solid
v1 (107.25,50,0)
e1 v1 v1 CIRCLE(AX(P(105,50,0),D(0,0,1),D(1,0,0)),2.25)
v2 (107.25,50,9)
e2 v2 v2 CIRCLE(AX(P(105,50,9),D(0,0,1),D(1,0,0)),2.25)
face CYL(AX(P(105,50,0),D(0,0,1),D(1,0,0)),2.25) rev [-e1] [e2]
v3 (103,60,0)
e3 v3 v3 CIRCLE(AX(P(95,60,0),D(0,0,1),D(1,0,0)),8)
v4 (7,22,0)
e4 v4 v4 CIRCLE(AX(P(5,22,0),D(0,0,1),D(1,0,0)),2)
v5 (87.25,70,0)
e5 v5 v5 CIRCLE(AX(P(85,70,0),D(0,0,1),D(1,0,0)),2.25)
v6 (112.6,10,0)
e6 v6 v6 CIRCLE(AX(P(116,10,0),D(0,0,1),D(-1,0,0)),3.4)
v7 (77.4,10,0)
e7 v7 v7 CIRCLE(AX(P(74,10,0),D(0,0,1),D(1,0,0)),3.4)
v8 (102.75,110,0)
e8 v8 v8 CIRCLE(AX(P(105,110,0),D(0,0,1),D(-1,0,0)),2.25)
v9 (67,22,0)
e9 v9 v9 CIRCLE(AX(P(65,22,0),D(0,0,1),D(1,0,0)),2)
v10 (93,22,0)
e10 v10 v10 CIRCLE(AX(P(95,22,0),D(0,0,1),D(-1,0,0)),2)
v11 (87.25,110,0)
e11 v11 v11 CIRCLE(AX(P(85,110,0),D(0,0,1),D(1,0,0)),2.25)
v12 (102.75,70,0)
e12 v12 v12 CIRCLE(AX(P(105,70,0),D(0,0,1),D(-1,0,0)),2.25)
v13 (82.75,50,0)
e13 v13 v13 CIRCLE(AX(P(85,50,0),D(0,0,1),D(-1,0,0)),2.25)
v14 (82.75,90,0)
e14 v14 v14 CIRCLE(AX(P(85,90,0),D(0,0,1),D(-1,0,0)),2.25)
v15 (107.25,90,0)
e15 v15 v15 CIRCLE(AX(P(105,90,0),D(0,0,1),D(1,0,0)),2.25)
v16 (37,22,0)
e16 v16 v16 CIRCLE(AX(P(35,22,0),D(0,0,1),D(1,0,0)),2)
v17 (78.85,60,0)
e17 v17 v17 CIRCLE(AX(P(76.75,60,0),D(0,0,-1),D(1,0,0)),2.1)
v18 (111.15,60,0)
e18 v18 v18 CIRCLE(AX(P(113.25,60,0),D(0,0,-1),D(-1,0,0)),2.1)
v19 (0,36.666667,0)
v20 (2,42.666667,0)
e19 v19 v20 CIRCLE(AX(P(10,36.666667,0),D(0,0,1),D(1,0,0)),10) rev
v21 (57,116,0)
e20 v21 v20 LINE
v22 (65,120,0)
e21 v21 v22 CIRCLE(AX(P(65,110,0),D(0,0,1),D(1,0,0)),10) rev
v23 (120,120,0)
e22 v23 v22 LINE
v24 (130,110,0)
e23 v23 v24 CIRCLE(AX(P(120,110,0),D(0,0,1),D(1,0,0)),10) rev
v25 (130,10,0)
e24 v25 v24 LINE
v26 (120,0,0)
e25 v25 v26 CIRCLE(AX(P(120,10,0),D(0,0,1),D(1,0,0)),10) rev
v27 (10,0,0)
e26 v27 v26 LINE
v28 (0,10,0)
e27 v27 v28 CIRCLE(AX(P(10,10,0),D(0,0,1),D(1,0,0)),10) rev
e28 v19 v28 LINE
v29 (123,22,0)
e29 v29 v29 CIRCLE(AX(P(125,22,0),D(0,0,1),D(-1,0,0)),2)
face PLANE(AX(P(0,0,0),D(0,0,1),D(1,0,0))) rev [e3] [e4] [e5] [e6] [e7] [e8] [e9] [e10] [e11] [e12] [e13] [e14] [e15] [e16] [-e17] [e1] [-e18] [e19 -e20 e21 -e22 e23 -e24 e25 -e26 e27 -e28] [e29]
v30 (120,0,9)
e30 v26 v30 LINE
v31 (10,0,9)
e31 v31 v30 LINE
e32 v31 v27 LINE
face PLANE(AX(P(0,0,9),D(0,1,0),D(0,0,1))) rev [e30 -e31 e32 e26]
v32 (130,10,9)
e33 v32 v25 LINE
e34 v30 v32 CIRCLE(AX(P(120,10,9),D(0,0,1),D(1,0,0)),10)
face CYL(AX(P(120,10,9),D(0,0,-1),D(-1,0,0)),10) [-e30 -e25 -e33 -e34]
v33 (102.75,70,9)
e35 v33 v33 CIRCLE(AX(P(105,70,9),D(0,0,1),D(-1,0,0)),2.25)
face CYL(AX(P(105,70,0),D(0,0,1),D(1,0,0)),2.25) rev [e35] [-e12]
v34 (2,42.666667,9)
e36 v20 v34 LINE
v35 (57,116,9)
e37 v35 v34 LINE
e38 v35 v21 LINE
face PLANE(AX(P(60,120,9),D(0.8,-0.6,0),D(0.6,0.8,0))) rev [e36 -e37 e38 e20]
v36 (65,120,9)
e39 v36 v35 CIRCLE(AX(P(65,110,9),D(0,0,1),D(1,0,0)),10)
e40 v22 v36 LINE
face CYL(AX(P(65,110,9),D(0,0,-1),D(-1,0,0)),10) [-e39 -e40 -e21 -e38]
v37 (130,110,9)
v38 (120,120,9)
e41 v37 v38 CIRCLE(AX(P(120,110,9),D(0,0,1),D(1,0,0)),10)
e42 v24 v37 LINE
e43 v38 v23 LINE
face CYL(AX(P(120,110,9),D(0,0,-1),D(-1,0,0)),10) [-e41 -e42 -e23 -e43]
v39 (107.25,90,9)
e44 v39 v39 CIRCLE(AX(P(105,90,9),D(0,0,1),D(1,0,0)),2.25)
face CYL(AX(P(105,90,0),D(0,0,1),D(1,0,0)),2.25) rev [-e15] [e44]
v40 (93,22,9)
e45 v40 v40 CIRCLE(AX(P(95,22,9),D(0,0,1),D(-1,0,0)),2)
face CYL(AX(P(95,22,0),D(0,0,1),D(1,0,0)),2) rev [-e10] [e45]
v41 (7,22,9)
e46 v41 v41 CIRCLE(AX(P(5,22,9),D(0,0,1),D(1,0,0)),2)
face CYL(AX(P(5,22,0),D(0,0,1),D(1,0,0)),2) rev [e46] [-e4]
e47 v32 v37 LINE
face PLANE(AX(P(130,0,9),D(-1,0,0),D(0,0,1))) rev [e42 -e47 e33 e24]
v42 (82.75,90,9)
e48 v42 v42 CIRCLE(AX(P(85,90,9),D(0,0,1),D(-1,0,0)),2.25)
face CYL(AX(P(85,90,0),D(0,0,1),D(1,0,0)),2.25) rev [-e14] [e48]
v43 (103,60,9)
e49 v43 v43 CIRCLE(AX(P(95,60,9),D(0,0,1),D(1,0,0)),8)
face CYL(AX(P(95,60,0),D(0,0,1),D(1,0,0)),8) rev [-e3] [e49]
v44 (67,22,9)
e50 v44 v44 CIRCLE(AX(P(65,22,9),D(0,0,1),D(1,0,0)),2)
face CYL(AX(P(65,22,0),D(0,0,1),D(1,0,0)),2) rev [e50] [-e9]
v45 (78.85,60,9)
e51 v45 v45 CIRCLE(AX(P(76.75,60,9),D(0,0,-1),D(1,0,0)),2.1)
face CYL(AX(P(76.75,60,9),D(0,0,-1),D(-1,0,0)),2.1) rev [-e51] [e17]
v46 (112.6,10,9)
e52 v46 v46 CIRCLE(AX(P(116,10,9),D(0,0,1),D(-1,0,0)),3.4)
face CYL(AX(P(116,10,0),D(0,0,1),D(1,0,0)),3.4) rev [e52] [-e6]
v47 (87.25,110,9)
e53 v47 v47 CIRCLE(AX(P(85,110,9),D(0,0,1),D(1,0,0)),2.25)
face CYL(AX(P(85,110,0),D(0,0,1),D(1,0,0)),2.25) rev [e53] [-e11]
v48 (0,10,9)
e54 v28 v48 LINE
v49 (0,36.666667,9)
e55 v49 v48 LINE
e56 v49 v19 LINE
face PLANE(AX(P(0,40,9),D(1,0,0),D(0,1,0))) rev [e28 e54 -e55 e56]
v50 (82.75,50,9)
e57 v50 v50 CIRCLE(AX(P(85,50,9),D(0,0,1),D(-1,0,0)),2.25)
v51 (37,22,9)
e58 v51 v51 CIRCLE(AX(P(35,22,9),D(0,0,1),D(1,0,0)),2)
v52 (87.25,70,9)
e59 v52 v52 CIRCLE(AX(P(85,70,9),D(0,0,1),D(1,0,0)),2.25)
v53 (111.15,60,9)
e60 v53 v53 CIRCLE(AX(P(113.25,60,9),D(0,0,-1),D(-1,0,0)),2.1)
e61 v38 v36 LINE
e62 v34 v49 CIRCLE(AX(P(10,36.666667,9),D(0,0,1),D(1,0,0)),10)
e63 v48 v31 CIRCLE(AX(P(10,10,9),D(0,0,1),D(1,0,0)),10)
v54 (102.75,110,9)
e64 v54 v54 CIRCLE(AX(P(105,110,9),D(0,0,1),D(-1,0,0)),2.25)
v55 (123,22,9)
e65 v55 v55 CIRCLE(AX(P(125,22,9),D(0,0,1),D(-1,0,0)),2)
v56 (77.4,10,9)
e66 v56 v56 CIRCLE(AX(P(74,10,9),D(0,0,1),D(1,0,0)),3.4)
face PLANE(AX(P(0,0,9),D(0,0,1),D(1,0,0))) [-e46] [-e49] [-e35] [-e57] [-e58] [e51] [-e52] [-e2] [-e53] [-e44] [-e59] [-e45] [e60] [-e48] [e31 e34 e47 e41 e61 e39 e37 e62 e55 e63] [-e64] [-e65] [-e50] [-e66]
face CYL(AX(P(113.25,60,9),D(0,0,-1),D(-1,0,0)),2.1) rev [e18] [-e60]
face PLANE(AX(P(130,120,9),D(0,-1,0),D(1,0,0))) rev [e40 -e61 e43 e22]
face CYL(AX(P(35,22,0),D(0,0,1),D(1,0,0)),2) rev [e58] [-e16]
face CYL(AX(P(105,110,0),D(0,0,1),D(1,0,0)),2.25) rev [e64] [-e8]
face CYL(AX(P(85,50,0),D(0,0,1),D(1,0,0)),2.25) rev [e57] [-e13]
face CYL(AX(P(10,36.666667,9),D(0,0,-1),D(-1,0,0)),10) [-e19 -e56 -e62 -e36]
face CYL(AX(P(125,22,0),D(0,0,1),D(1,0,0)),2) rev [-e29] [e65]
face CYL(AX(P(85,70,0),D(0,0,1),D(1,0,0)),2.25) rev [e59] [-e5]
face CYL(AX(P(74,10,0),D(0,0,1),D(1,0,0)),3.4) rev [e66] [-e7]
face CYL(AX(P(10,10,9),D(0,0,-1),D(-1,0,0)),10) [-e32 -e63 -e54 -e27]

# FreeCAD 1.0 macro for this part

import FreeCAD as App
import Part
import Sketcher

V = App.Vector


def edges_at(feature, points):
    """Names of the edges that pass closest to the given points."""
    edges = feature.Shape.Edges
    near = lambda p: min(range(len(edges)), key=lambda i: edges[i].distToShape(Part.Vertex(*p))[0])
    return sorted({f"Edge{near(p) + 1}" for p in points})

doc = App.newDocument("Part")
body = doc.addObject("PartDesign::Body", "Body")

# Sketch on XY plane
sketch1 = body.newObject("Sketcher::SketchObject", "Sketch")
sketch1.AttachmentSupport = (doc.getObject("XY_Plane"), [""])
sketch1.MapMode = "FlatFace"
sketch1.addGeometry([
    Part.LineSegment(V(0, 0, 0), V(130, 0, 0)),  # 0
    Part.LineSegment(V(130, 0, 0), V(130, 120, 0)),  # 1
    Part.LineSegment(V(130, 120, 0), V(60, 120, 0)),  # 2
    Part.LineSegment(V(60, 120, 0), V(0, 40, 0)),  # 3
    Part.LineSegment(V(0, 40, 0), V(0, 0, 0)),  # 4
], False)
sketch1.addConstraint([
    Sketcher.Constraint("Coincident", 0, 2, 1, 1),
    Sketcher.Constraint("Coincident", 1, 2, 2, 1),
    Sketcher.Constraint("Coincident", 2, 2, 3, 1),
    Sketcher.Constraint("Coincident", 3, 2, 4, 1),
    Sketcher.Constraint("Coincident", 4, 2, 0, 1),
    Sketcher.Constraint("Horizontal", 0),
    Sketcher.Constraint("Vertical", 1),
    Sketcher.Constraint("Horizontal", 2),
    Sketcher.Constraint("Vertical", 4),
    Sketcher.Constraint("Coincident", 4, 2, -1, 1),
    Sketcher.Constraint("DistanceX", 0, 1, 0, 2, 130.0),
    Sketcher.Constraint("DistanceX", 2, 2, 2, 1, 70.0),
    Sketcher.Constraint("DistanceY", 1, 1, 1, 2, 120.0),
    Sketcher.Constraint("DistanceY", 4, 2, 4, 1, 40.0),
])
pad1 = body.newObject("PartDesign::Pad", "Pad")
pad1.Profile = sketch1
pad1.Length = 9

# Sketch on XY plane
sketch2 = body.newObject("Sketcher::SketchObject", "Sketch001")
sketch2.AttachmentSupport = (doc.getObject("XY_Plane"), [""])
sketch2.MapMode = "FlatFace"
sketch2.AttachmentOffset = App.Placement(V(0, 0, 9), App.Rotation())
sketch2.addGeometry([
    Part.Circle(V(65, 22, 0), V(0, 0, 1), 2),  # 0
    Part.Circle(V(35, 22, 0), V(0, 0, 1), 2),  # 1
    Part.Circle(V(5, 22, 0), V(0, 0, 1), 2),  # 2
    Part.Circle(V(125, 22, 0), V(0, 0, 1), 2),  # 3
    Part.Circle(V(95, 22, 0), V(0, 0, 1), 2),  # 4
    Part.Circle(V(85, 110, 0), V(0, 0, 1), 2.2),  # 5
    Part.Circle(V(85, 90, 0), V(0, 0, 1), 2.2),  # 6
    Part.Circle(V(105, 90, 0), V(0, 0, 1), 2.2),  # 7
    Part.Circle(V(105, 110, 0), V(0, 0, 1), 2.2),  # 8
    Part.Circle(V(105, 50, 0), V(0, 0, 1), 2.2),  # 9
    Part.Circle(V(105, 70, 0), V(0, 0, 1), 2.2),  # 10
    Part.Circle(V(85, 70, 0), V(0, 0, 1), 2.2),  # 11
    Part.Circle(V(85, 50, 0), V(0, 0, 1), 2.2),  # 12
], False)
sketch2.addConstraint([
    Sketcher.Constraint("Equal", 0, 1),
    Sketcher.Constraint("Equal", 1, 2),
    Sketcher.Constraint("Equal", 2, 3),
    Sketcher.Constraint("Equal", 3, 4),
    Sketcher.Constraint("Equal", 5, 6),
    Sketcher.Constraint("Equal", 6, 7),
    Sketcher.Constraint("Equal", 7, 8),
    Sketcher.Constraint("Equal", 8, 9),
    Sketcher.Constraint("Equal", 9, 10),
    Sketcher.Constraint("Equal", 10, 11),
    Sketcher.Constraint("Equal", 11, 12),
    Sketcher.Constraint("Horizontal", 0, 3, 1, 3),
    Sketcher.Constraint("Horizontal", 1, 3, 2, 3),
    Sketcher.Constraint("Horizontal", 2, 3, 3, 3),
    Sketcher.Constraint("Horizontal", 3, 3, 4, 3),
    Sketcher.Constraint("Horizontal", 6, 3, 7, 3),
    Sketcher.Constraint("Horizontal", 5, 3, 8, 3),
    Sketcher.Constraint("Horizontal", 10, 3, 11, 3),
    Sketcher.Constraint("Horizontal", 9, 3, 12, 3),
    Sketcher.Constraint("Vertical", 5, 3, 6, 3),
    Sketcher.Constraint("Vertical", 7, 3, 8, 3),
    Sketcher.Constraint("Vertical", 8, 3, 9, 3),
    Sketcher.Constraint("Vertical", 9, 3, 10, 3),
    Sketcher.Constraint("Vertical", 6, 3, 11, 3),
    Sketcher.Constraint("Vertical", 11, 3, 12, 3),
    Sketcher.Constraint("Diameter", 0, 4.0),
    Sketcher.Constraint("Diameter", 5, 4.5),
    Sketcher.Constraint("DistanceX", -1, 1, 0, 3, 65.0),
    Sketcher.Constraint("DistanceY", -1, 1, 0, 3, 22.0),
    Sketcher.Constraint("DistanceX", -1, 1, 1, 3, 35.0),
    Sketcher.Constraint("DistanceX", -1, 1, 2, 3, 5.0),
    Sketcher.Constraint("DistanceX", -1, 1, 3, 3, 125.0),
    Sketcher.Constraint("DistanceX", -1, 1, 4, 3, 95.0),
    Sketcher.Constraint("DistanceX", -1, 1, 5, 3, 85.0),
    Sketcher.Constraint("DistanceY", -1, 1, 5, 3, 110.0),
    Sketcher.Constraint("DistanceY", -1, 1, 6, 3, 90.0),
    Sketcher.Constraint("DistanceX", -1, 1, 7, 3, 105.0),
    Sketcher.Constraint("DistanceY", -1, 1, 9, 3, 50.0),
    Sketcher.Constraint("DistanceY", -1, 1, 10, 3, 70.0),
])
pocket1 = body.newObject("PartDesign::Pocket", "Pocket")
pocket1.Profile = sketch2
pocket1.Type = "ThroughAll"

# Sketch on XY plane
sketch3 = body.newObject("Sketcher::SketchObject", "Sketch002")
sketch3.AttachmentSupport = (doc.getObject("XY_Plane"), [""])
sketch3.MapMode = "FlatFace"
sketch3.AttachmentOffset = App.Placement(V(0, 0, 9), App.Rotation())
sketch3.addGeometry([
    Part.Circle(V(95, 60, 0), V(0, 0, 1), 8),
    Part.Circle(V(74, 10, 0), V(0, 0, 1), 3.4),
    Part.Circle(V(116, 10, 0), V(0, 0, 1), 3.4),
], False)
sketch3.addConstraint([
    Sketcher.Constraint("Equal", 1, 2),
    Sketcher.Constraint("Horizontal", 1, 3, 2, 3),
    Sketcher.Constraint("Diameter", 0, 16.0),
    Sketcher.Constraint("Diameter", 1, 6.8),
    Sketcher.Constraint("DistanceX", -1, 1, 0, 3, 95.0),
    Sketcher.Constraint("DistanceY", -1, 1, 0, 3, 60.0),
    Sketcher.Constraint("DistanceX", -1, 1, 1, 3, 74.0),
    Sketcher.Constraint("DistanceY", -1, 1, 1, 3, 10.0),
    Sketcher.Constraint("DistanceX", -1, 1, 2, 3, 116.0),
])
pocket2 = body.newObject("PartDesign::Pocket", "Pocket001")
pocket2.Profile = sketch3
pocket2.Type = "ThroughAll"
doc.recompute()

fillet = body.newObject("PartDesign::Fillet", "Fillet")
fillet.Base = (pocket2, edges_at(pocket2, [
    (0, 40, 4.5),
    (60, 120, 4.5),
    (130, 120, 4.5),
    (130, 0, 4.5),
    (0, 0, 4.5),
]))
fillet.Radius = 10

# Sketch on XY plane
sketch4 = body.newObject("Sketcher::SketchObject", "Sketch003")
sketch4.AttachmentSupport = (doc.getObject("XY_Plane"), [""])
sketch4.MapMode = "FlatFace"
sketch4.addGeometry([
    Part.Circle(V(113.2, 60, 0), V(0, 0, 1), 2.1),
    Part.Circle(V(76.8, 60, 0), V(0, 0, 1), 2.1),
], False)
sketch4.addConstraint([
    Sketcher.Constraint("Equal", 0, 1),
    Sketcher.Constraint("Horizontal", 0, 3, 1, 3),
    Sketcher.Constraint("Diameter", 0, 4.2),
    Sketcher.Constraint("DistanceY", -1, 1, 0, 3, 60.0),
    Sketcher.Constraint("DistanceX", 1, 3, 0, 3, 36.5),
    Sketcher.Constraint("DistanceX", -1, 1, 0, 3, 113.25),
])
pocket3 = body.newObject("PartDesign::Pocket", "Pocket002")
pocket3.Profile = sketch4
pocket3.Type = "ThroughAll"
pocket3.Reversed = True

doc.recompute()
